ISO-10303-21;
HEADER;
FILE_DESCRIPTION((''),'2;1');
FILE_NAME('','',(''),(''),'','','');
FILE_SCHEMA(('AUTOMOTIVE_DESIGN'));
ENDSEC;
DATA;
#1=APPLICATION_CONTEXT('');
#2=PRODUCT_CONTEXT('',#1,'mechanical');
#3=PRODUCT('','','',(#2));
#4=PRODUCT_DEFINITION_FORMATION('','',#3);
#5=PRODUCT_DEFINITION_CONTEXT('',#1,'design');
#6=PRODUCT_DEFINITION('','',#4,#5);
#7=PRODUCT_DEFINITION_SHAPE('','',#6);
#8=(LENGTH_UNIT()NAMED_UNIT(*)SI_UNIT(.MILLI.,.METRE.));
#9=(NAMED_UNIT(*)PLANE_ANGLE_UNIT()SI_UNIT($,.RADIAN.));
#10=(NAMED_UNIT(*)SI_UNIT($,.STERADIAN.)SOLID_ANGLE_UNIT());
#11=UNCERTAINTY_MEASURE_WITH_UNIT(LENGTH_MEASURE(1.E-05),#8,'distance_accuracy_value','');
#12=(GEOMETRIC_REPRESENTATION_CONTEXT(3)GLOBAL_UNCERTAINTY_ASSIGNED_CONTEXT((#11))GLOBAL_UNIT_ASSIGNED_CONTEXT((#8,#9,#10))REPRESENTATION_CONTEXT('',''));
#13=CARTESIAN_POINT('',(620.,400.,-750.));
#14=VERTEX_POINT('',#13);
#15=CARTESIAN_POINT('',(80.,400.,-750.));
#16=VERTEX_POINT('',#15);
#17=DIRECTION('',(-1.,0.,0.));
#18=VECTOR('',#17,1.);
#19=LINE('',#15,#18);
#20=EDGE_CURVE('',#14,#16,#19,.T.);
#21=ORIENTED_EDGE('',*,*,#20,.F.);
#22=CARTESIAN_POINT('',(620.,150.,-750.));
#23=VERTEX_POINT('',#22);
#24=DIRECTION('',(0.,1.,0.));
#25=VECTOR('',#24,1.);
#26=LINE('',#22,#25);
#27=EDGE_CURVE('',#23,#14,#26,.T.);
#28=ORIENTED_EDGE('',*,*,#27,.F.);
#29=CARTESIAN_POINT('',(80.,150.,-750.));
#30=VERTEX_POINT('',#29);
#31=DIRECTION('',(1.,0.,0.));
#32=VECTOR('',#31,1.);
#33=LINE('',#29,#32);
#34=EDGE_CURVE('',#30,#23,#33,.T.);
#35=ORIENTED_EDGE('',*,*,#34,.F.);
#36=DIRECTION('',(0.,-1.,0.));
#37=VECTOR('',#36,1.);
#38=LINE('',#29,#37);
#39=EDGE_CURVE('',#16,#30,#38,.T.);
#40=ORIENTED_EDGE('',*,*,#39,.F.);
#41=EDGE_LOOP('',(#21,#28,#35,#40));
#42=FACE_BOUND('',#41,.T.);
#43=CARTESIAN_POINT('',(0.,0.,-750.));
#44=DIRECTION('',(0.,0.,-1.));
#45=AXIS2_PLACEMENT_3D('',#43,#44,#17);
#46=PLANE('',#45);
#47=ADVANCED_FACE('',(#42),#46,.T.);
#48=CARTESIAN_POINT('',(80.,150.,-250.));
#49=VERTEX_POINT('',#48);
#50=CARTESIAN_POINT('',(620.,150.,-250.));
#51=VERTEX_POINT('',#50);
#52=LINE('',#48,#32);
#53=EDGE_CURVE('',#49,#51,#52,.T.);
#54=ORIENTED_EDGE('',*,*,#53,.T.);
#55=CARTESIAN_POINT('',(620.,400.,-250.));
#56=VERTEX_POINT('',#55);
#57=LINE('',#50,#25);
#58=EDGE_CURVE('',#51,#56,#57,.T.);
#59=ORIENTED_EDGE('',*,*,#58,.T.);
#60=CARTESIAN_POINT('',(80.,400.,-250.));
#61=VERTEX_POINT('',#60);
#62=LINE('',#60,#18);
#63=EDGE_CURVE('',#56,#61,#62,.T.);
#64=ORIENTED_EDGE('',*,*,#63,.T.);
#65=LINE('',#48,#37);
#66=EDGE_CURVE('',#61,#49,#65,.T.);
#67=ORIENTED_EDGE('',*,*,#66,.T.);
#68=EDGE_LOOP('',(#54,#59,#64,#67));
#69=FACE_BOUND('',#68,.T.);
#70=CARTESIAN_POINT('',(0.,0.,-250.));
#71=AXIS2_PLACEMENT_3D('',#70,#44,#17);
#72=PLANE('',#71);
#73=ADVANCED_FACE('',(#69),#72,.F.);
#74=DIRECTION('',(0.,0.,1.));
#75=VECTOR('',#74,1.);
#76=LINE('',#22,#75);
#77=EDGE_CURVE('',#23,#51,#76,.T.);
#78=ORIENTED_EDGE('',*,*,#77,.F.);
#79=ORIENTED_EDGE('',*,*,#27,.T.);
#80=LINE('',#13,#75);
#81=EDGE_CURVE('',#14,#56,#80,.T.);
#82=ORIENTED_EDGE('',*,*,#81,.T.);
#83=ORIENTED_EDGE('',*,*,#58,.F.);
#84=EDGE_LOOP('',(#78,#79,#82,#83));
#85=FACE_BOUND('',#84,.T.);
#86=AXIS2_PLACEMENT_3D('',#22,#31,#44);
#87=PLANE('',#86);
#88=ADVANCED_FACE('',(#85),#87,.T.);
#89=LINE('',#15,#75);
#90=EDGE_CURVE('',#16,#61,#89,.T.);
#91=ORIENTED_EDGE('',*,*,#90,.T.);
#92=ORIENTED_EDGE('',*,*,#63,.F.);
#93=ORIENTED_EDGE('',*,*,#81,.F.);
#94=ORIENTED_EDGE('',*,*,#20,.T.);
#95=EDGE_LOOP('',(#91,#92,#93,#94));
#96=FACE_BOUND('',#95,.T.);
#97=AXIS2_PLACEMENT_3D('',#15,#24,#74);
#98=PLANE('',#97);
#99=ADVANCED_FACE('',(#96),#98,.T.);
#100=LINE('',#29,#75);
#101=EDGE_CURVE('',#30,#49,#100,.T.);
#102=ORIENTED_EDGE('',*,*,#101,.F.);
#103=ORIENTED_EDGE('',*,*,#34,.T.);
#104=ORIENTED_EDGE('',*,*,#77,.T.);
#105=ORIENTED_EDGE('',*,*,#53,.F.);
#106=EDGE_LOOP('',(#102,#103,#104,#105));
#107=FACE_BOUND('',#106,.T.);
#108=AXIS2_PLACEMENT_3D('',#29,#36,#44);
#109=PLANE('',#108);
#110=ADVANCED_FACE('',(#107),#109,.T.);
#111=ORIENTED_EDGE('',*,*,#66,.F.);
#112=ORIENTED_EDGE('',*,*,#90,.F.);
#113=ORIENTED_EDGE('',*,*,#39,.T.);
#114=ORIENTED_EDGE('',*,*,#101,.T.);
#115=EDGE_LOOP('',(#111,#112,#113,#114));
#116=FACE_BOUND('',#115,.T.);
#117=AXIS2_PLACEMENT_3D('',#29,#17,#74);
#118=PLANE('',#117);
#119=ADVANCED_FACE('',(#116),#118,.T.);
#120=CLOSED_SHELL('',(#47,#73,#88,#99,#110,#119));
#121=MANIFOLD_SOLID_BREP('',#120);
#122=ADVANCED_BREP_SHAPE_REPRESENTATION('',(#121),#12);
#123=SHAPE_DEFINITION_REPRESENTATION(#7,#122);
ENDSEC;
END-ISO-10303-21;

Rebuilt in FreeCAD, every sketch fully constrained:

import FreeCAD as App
import Part
import Sketcher


def add_polygon(sketch, points):
    """Adds a closed chain of lines whose ends are joined by coincident constraints."""
    first, n = sketch.GeometryCount, len(points)
    for a, b in zip(points, points[1:] + points[:1]):
        sketch.addGeometry(Part.LineSegment(App.Vector(*a, 0), App.Vector(*b, 0)), False)
    for i in range(n):
        sketch.addConstraint(Sketcher.Constraint("Coincident", first + i, 2, first + (i + 1) % n, 1))

doc = App.newDocument("Part")
params = doc.addObject("Spreadsheet::Sheet", "Params")
for row, (alias, value) in enumerate([
    ("sketch1_width", "540 mm"),
    ("sketch1_height", "250 mm"),
    ("pad1_length", "500 mm"),
], start=1):
    params.set(f"A{row}", alias)
    params.set(f"B{row}", "=" + value)
    params.setAlias(f"B{row}", alias)

body = doc.addObject("PartDesign::Body", "Body")

sketch1 = body.newObject("Sketcher::SketchObject", "Sketch")
sketch1.AttachmentSupport = (doc.getObject("XY_Plane"), [""])
sketch1.MapMode = "FlatFace"
sketch1.AttachmentOffset = App.Placement(App.Vector(0, 0, -250), App.Rotation())
add_polygon(sketch1, [(80, 400), (80, 150), (620, 150), (620, 400)])
sketch1.addConstraint([
    Sketcher.Constraint("Vertical", 0),
    Sketcher.Constraint("Horizontal", 1),
    Sketcher.Constraint("Vertical", 2),
    Sketcher.Constraint("Horizontal", 3),
    Sketcher.Constraint("DistanceX", 1, 1, 1, 2, 540.0),
    Sketcher.Constraint("DistanceY", 0, 2, 0, 1, 250.0),
    Sketcher.Constraint("DistanceX", -1, 1, 0, 2, 80.0),
    Sketcher.Constraint("DistanceY", -1, 1, 0, 2, 150.0),
])
sketch1.setExpression("Constraints[8]", "Params.sketch1_width")
sketch1.setExpression("Constraints[9]", "Params.sketch1_height")
pad1 = body.newObject("PartDesign::Pad", "Pad")
pad1.Profile = sketch1
pad1.setExpression("Length", "Params.pad1_length")
pad1.Reversed = True

doc.recompute()
